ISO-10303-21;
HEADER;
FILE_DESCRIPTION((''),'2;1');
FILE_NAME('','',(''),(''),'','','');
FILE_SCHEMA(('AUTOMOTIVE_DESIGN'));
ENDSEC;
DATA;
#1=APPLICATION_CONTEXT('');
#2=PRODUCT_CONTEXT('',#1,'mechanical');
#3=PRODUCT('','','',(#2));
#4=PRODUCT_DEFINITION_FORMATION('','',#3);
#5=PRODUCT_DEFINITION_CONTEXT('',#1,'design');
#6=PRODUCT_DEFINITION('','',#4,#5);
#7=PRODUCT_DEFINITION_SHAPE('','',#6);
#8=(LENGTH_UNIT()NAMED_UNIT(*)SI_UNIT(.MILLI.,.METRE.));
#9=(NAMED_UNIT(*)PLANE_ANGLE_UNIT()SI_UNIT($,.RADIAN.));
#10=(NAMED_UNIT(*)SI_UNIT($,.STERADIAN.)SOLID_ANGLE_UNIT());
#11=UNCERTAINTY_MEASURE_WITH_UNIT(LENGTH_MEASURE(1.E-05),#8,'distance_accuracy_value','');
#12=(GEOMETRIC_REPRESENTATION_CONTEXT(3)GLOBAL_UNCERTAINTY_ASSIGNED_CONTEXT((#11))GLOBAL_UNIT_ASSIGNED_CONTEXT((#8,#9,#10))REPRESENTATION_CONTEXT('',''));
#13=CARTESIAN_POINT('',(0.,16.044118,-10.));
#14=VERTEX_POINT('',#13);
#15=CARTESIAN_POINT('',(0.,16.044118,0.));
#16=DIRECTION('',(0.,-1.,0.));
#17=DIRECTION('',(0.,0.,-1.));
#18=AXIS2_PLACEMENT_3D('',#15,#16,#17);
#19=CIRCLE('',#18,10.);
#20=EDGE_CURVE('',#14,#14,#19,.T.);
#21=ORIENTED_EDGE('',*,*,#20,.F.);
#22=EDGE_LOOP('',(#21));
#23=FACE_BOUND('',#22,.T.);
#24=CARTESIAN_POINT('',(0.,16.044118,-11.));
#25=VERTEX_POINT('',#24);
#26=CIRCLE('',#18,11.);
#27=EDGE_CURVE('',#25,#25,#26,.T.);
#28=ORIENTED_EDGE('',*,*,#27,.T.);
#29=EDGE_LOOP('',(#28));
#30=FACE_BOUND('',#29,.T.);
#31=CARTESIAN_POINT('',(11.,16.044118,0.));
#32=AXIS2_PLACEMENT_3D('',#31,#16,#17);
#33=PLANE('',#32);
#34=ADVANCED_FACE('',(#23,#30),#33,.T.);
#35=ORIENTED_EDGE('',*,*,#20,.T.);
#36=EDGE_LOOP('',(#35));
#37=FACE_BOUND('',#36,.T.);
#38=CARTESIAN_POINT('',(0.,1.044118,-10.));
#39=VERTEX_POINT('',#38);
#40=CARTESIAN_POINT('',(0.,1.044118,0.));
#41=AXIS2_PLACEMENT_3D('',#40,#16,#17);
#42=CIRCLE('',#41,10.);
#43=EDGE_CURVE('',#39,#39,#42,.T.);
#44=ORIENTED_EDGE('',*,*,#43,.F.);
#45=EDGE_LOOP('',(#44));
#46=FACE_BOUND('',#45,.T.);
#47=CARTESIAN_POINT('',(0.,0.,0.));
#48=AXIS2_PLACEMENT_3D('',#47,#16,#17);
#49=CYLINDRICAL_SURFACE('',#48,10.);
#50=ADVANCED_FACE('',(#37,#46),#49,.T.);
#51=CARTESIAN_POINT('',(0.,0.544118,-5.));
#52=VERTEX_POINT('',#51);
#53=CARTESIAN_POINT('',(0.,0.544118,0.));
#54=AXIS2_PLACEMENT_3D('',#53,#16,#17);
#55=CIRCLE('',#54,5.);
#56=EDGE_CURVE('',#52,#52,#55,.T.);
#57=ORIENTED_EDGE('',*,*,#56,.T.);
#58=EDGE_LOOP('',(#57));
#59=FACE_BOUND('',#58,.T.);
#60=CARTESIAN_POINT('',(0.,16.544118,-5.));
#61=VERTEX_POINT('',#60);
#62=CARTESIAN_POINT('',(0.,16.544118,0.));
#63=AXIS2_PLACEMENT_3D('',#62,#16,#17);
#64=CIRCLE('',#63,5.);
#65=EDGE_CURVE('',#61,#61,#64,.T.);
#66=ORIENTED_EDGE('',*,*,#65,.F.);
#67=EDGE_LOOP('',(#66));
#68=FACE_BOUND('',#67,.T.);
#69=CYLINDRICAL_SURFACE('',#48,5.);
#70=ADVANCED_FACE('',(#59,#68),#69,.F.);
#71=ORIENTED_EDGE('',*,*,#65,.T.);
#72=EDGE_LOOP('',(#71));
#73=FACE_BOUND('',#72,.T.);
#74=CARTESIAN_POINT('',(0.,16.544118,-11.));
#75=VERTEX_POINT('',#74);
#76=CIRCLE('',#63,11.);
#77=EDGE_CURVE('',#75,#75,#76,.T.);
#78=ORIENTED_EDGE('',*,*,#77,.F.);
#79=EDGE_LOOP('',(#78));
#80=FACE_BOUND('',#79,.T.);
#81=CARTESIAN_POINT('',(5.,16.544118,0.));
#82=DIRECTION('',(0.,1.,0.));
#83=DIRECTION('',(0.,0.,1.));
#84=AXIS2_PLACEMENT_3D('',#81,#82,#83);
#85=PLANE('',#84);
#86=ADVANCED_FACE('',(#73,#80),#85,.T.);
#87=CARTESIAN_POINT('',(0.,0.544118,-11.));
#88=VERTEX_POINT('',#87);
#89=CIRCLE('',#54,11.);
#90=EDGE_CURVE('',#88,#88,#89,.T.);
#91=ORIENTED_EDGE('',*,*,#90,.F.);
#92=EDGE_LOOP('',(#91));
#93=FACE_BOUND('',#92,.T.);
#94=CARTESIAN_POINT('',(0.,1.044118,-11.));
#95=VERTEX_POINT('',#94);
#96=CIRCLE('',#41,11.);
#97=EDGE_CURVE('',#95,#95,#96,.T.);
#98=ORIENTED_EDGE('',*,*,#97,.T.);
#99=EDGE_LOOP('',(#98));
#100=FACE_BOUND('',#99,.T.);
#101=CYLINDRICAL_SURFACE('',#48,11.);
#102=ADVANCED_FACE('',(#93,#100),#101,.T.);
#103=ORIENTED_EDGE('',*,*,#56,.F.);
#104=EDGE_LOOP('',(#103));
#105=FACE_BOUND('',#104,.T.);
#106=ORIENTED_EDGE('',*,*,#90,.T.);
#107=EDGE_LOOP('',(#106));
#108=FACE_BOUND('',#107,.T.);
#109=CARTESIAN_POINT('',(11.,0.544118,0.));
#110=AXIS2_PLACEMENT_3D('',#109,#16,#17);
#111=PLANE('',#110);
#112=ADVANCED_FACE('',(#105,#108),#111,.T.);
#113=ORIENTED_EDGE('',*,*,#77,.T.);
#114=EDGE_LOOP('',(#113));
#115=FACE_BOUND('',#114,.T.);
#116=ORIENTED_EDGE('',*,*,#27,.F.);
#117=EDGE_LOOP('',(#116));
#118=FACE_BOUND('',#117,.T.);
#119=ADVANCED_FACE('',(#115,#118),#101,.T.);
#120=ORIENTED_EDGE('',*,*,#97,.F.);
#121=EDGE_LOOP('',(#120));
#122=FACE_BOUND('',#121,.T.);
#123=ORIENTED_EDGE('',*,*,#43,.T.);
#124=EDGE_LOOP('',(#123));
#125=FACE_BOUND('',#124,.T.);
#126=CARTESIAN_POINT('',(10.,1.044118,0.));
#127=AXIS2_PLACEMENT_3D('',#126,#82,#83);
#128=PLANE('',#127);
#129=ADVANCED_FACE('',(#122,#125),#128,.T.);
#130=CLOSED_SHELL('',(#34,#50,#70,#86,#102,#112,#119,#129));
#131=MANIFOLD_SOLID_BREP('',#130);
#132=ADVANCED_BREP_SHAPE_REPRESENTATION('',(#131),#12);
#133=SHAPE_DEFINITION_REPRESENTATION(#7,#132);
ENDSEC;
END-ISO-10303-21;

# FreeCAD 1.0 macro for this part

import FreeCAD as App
import Part
import Sketcher
from FreeCAD import Vector
Q = App.Units.Quantity

doc = App.newDocument("Part")
body = doc.addObject("PartDesign::Body", "Body")

# Sketch on XY plane
sketch1 = body.newObject("Sketcher::SketchObject", "Sketch")
sketch1.AttachmentSupport = (doc.getObject("XY_Plane"), [""])
sketch1.MapMode = "FlatFace"
sketch1.addGeometry([
    Part.LineSegment(Vector(11, 16.5, 0), Vector(5, 16.5, 0)),  # 0
    Part.LineSegment(Vector(5, 16.5, 0), Vector(5, 0.5, 0)),  # 1
    Part.LineSegment(Vector(5, 0.5, 0), Vector(11, 0.5, 0)),  # 2
    Part.LineSegment(Vector(11, 0.5, 0), Vector(11, 1, 0)),  # 3
    Part.LineSegment(Vector(11, 1, 0), Vector(10, 1, 0)),  # 4
    Part.LineSegment(Vector(10, 1, 0), Vector(10, 16, 0)),  # 5
    Part.LineSegment(Vector(10, 16, 0), Vector(11, 16, 0)),  # 6
    Part.LineSegment(Vector(11, 16, 0), Vector(11, 16.5, 0)),  # 7
], False)
sketch1.addConstraint([
    Sketcher.Constraint("Coincident", 0, 2, 1, 1),
    Sketcher.Constraint("Coincident", 1, 2, 2, 1),
    Sketcher.Constraint("Coincident", 2, 2, 3, 1),
    Sketcher.Constraint("Coincident", 3, 2, 4, 1),
    Sketcher.Constraint("Coincident", 4, 2, 5, 1),
    Sketcher.Constraint("Coincident", 5, 2, 6, 1),
    Sketcher.Constraint("Coincident", 6, 2, 7, 1),
    Sketcher.Constraint("Coincident", 7, 2, 0, 1),
    Sketcher.Constraint("Horizontal", 0),
    Sketcher.Constraint("Vertical", 1),
    Sketcher.Constraint("Horizontal", 2),
    Sketcher.Constraint("Vertical", 3),
    Sketcher.Constraint("Horizontal", 4),
    Sketcher.Constraint("Vertical", 5),
    Sketcher.Constraint("Horizontal", 6),
    Sketcher.Constraint("Vertical", 7),
    Sketcher.Constraint("Vertical", 3, 2, 6, 2),
    Sketcher.Constraint("Equal", 3, 7),
    Sketcher.Constraint("DistanceX", 0, 2, 0, 1, Q("6 mm")),
    Sketcher.Constraint("DistanceX", 4, 2, 4, 1, Q("1 mm")),
    Sketcher.Constraint("DistanceY", 1, 2, 1, 1, Q("16 mm")),
    Sketcher.Constraint("DistanceY", 5, 1, 5, 2, Q("15 mm")),
    Sketcher.Constraint("DistanceX", -1, 1, 0, 2, Q("5 mm")),
    Sketcher.Constraint("DistanceY", -1, 1, 0, 2, Q("16.544118 mm")),
])
revolution = body.newObject("PartDesign::Revolution", "Revolution")
revolution.Profile = sketch1
revolution.ReferenceAxis = (sketch1, ["V_Axis"])
revolution.Angle = 360

doc.recompute()
